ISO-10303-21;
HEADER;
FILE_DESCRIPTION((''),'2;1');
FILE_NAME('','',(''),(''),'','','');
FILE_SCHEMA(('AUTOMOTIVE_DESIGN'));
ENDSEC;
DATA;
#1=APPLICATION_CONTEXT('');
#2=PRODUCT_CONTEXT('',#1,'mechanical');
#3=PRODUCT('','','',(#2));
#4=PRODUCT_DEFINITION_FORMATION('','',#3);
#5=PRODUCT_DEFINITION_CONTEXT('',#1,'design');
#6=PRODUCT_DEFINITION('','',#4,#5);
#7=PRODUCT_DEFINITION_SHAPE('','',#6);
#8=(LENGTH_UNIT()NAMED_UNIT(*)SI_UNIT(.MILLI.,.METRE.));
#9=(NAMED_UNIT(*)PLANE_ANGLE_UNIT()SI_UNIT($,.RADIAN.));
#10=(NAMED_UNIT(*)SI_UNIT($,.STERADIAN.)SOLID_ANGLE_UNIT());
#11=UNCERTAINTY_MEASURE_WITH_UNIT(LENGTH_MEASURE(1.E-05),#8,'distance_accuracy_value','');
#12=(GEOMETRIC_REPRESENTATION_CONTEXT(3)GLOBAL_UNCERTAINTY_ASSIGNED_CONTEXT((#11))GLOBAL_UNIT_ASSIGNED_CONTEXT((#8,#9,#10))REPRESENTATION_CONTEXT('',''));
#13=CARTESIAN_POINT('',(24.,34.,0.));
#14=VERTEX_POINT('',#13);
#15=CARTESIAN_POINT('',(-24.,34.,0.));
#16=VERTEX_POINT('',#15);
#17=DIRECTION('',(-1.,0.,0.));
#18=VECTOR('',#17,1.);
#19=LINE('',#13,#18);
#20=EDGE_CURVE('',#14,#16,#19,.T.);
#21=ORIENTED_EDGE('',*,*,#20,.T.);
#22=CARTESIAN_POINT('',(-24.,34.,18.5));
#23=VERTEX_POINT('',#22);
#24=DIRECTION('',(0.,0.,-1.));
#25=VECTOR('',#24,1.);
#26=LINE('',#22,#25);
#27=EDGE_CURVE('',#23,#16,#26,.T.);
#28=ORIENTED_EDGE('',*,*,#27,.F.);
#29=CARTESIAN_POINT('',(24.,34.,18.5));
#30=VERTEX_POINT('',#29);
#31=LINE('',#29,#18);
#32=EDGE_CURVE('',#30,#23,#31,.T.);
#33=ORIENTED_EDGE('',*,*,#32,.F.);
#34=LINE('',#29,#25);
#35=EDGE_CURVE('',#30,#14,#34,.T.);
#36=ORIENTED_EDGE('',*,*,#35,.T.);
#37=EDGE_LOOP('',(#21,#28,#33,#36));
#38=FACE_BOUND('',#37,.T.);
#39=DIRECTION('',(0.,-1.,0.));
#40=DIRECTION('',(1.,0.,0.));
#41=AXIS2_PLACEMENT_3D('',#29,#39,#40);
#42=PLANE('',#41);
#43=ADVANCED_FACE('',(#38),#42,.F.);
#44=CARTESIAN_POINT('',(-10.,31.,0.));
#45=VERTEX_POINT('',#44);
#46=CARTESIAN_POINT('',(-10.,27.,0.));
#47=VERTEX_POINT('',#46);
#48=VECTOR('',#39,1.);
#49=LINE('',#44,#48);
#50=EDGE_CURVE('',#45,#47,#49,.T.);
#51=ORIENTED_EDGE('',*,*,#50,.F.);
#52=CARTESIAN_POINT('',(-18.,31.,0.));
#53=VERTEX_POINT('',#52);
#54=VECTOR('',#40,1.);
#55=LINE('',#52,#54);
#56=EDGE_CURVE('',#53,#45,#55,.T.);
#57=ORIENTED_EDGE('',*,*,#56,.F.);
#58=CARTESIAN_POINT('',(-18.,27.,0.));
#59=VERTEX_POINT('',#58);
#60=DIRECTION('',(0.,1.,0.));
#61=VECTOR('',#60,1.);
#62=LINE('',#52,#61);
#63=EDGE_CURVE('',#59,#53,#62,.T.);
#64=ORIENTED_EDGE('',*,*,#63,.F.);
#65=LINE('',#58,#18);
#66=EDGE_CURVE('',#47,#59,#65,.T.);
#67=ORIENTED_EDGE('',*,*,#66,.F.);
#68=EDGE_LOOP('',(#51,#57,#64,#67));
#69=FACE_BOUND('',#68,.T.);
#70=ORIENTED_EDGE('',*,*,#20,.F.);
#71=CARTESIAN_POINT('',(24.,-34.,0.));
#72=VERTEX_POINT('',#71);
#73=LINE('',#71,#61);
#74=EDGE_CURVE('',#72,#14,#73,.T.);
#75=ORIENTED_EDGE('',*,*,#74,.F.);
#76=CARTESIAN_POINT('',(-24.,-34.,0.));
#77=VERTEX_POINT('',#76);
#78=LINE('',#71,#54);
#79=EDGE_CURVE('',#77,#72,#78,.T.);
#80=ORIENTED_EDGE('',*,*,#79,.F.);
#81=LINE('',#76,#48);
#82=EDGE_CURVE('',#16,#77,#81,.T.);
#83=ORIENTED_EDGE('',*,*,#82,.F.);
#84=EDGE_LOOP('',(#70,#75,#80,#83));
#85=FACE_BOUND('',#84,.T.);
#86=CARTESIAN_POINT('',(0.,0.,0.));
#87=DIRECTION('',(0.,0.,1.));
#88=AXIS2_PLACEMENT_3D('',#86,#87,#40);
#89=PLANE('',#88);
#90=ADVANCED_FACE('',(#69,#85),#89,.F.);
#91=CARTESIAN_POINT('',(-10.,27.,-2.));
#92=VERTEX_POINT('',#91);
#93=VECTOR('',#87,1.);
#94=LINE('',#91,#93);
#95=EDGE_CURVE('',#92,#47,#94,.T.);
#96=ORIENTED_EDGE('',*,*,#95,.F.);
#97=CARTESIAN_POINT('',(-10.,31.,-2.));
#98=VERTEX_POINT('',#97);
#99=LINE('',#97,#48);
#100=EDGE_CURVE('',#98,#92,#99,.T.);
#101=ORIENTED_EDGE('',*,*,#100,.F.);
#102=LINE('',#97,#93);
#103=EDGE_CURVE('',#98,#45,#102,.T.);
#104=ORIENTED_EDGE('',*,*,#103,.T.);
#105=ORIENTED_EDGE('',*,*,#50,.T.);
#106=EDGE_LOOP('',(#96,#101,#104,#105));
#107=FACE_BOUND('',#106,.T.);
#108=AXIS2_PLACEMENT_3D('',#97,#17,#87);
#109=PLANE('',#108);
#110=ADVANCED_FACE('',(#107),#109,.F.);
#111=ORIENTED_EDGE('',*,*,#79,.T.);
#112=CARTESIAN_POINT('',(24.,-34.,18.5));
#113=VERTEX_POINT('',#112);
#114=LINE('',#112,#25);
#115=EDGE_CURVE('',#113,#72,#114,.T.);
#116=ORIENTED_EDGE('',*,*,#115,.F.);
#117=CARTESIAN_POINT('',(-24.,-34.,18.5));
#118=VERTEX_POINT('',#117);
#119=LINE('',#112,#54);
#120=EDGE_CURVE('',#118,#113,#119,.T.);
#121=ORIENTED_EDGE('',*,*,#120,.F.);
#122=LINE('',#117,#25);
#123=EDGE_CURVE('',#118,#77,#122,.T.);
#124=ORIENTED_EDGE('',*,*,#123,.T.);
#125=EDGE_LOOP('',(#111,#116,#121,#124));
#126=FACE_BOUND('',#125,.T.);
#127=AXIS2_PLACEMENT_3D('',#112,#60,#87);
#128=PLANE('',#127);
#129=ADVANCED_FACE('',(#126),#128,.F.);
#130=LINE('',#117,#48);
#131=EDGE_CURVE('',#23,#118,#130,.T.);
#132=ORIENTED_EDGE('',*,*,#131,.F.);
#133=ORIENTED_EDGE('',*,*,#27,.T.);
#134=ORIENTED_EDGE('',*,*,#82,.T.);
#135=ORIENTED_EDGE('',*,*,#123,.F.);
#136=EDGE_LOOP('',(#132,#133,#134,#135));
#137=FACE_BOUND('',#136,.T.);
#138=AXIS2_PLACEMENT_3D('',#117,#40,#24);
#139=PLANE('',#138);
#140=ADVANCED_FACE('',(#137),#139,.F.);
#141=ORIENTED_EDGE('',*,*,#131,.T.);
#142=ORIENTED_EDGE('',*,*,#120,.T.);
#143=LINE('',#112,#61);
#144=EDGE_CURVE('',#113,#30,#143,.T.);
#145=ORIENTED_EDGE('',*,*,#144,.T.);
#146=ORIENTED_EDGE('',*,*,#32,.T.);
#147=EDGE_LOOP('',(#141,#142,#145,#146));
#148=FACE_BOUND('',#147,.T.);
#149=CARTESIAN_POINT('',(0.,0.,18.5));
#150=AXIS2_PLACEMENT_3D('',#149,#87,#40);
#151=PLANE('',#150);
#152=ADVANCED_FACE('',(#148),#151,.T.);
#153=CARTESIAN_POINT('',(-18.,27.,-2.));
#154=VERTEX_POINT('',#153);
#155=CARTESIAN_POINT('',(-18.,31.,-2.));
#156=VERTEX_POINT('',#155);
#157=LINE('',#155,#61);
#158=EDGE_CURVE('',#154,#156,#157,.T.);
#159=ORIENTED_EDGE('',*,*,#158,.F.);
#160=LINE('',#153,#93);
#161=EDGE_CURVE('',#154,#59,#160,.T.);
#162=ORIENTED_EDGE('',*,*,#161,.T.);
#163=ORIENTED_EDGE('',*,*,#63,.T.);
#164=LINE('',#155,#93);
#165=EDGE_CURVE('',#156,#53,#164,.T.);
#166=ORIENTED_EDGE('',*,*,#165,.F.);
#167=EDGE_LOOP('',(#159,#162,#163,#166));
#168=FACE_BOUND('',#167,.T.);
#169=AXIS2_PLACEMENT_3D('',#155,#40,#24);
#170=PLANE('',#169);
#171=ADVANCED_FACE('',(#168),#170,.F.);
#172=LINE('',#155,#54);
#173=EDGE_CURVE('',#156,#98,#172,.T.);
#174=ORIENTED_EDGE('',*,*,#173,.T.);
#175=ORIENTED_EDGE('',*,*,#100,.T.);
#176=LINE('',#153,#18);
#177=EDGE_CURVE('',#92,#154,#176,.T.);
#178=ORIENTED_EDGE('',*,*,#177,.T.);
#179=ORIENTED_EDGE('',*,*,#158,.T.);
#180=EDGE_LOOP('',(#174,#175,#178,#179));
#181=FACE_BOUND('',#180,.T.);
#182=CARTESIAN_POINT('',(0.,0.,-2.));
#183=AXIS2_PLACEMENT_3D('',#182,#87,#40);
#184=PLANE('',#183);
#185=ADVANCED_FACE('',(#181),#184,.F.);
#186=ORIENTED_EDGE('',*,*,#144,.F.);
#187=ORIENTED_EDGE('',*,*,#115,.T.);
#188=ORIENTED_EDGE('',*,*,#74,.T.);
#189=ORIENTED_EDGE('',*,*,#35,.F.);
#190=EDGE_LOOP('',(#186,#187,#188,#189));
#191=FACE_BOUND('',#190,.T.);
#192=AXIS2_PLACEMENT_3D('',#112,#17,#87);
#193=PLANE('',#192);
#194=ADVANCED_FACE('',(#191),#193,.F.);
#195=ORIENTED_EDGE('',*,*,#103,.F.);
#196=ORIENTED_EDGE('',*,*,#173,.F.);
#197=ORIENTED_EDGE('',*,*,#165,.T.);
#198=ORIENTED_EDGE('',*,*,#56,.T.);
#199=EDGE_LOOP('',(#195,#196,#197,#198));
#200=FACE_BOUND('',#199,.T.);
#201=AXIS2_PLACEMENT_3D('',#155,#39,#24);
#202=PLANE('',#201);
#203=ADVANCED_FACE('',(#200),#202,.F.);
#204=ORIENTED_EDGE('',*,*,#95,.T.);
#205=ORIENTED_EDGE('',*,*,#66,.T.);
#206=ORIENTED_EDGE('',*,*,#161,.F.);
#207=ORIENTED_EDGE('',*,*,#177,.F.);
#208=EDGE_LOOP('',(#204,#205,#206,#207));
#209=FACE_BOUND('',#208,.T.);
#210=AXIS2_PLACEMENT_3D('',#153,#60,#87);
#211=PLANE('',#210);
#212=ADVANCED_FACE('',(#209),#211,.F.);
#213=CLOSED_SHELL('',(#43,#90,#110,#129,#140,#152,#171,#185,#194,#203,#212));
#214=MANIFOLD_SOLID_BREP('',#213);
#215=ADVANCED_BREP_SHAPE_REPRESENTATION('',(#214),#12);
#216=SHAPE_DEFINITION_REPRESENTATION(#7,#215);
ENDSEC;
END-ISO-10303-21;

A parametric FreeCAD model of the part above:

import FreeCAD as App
import Part
import Sketcher

V = App.Vector
Q = App.Units.Quantity


def add_polygon(sketch, points):
    """Adds a closed chain of lines whose ends are joined by coincident constraints."""
    first, n = sketch.GeometryCount, len(points)
    for a, b in zip(points, points[1:] + points[:1]):
        sketch.addGeometry(Part.LineSegment(App.Vector(*a, 0), App.Vector(*b, 0)), False)
    for i in range(n):
        sketch.addConstraint(Sketcher.Constraint("Coincident", first + i, 2, first + (i + 1) % n, 1))

doc = App.newDocument("Part")
body = doc.addObject("PartDesign::Body", "Body")

# Sketch on XY plane
sketch1 = body.newObject("Sketcher::SketchObject", "Sketch")
sketch1.AttachmentSupport = (doc.getObject("XY_Plane"), [""])
sketch1.MapMode = "FlatFace"
add_polygon(sketch1, [(-24, 34), (-24, -34), (24, -34), (24, 34)])  # lines 0-3
sketch1.addConstraint([
    Sketcher.Constraint("Vertical", 0),
    Sketcher.Constraint("Horizontal", 1),
    Sketcher.Constraint("Vertical", 2),
    Sketcher.Constraint("Horizontal", 3),
    Sketcher.Constraint("Symmetric", 0, 2, 2, 2, -1, 1),
    Sketcher.Constraint("DistanceX", 1, 1, 1, 2, Q("48 mm")),
    Sketcher.Constraint("DistanceY", 0, 2, 0, 1, Q("68 mm")),
])
pad1 = body.newObject("PartDesign::Pad", "Pad")
pad1.Profile = sketch1
pad1.Length = 18.5

# Sketch on XY plane
sketch2 = body.newObject("Sketcher::SketchObject", "Sketch001")
sketch2.AttachmentSupport = (doc.getObject("XY_Plane"), [""])
sketch2.MapMode = "FlatFace"
add_polygon(sketch2, [(-10, 31), (-10, 27), (-18, 27), (-18, 31)])  # lines 0-3
sketch2.addConstraint([
    Sketcher.Constraint("Vertical", 0),
    Sketcher.Constraint("Horizontal", 1),
    Sketcher.Constraint("Vertical", 2),
    Sketcher.Constraint("Horizontal", 3),
    Sketcher.Constraint("DistanceX", 1, 2, 1, 1, Q("8 mm")),
    Sketcher.Constraint("DistanceY", 0, 2, 0, 1, Q("4 mm")),
    Sketcher.Constraint("DistanceX", 0, 2, -1, 1, Q("10 mm")),
    Sketcher.Constraint("DistanceY", -1, 1, 0, 2, Q("27 mm")),
])
pad2 = body.newObject("PartDesign::Pad", "Pad001")
pad2.Profile = sketch2
pad2.Length = 2
pad2.Reversed = True

doc.recompute()
